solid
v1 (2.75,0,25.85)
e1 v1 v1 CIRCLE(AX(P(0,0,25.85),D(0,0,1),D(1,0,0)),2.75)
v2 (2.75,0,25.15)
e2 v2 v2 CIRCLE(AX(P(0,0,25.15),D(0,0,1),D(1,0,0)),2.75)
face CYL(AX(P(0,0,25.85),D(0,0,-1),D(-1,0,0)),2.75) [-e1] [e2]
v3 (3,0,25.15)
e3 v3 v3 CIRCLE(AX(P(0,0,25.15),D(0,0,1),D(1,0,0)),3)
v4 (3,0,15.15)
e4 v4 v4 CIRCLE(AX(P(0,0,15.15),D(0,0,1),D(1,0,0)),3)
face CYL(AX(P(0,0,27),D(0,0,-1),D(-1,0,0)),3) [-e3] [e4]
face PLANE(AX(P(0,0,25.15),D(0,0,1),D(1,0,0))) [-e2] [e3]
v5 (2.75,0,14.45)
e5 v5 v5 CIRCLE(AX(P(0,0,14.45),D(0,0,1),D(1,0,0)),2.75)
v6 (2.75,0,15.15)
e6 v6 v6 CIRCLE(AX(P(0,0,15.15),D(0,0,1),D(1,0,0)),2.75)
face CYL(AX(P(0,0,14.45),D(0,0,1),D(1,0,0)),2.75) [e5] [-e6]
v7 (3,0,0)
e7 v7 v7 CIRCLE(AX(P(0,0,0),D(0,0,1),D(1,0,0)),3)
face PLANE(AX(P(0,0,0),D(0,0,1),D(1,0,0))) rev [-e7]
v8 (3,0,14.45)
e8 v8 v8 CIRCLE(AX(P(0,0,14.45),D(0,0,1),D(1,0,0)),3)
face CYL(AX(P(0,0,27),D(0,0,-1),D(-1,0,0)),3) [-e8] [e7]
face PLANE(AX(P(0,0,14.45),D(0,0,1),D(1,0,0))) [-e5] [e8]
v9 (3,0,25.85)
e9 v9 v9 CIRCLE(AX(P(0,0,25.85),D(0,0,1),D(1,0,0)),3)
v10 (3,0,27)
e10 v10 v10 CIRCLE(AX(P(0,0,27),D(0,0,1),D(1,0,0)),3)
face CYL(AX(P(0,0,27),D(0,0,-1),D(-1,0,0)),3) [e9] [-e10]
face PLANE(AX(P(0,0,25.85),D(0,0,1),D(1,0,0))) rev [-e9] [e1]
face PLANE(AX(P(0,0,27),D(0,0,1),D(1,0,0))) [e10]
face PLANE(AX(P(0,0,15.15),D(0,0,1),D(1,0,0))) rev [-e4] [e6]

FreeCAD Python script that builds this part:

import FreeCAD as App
import Part
import Sketcher

V = App.Vector
Q = App.Units.Quantity

doc = App.newDocument("Part")
body = doc.addObject("PartDesign::Body", "Body")

sketch1 = body.newObject("Sketcher::SketchObject", "Sketch")
sketch1.AttachmentSupport = (doc.getObject("XY_Plane"), [""])
sketch1.MapMode = "FlatFace"
sketch1.addGeometry(Part.Circle(V(0, 0, 0), V(0, 0, 1), 3), False)
sketch1.addConstraint(Sketcher.Constraint("Coincident", 0, 3, -1, 1))
sketch1.addConstraint(Sketcher.Constraint("Diameter", 0, Q("6 mm")))
pad1 = body.newObject("PartDesign::Pad", "Pad")
pad1.Profile = sketch1
pad1.Length = 27

sketch2 = body.newObject("Sketcher::SketchObject", "Sketch001")
sketch2.AttachmentSupport = (doc.getObject("XY_Plane"), [""])
sketch2.MapMode = "FlatFace"
sketch2.AttachmentOffset = App.Placement(V(0, 0, 25.5), App.Rotation())
sketch2.addGeometry(Part.Circle(V(0, 0, 0), V(0, 0, 1), 3), False)
sketch2.addGeometry(Part.Circle(V(0, 0, 0), V(0, 0, 1), 2.8), False)
sketch2.addConstraint(Sketcher.Constraint("Coincident", 0, 3, -1, 1))
sketch2.addConstraint(Sketcher.Constraint("Coincident", 1, 3, -1, 1))
sketch2.addConstraint(Sketcher.Constraint("Diameter", 0, Q("6 mm")))
sketch2.addConstraint(Sketcher.Constraint("Diameter", 1, Q("5.5 mm")))
pocket1 = body.newObject("PartDesign::Pocket", "Pocket")
pocket1.Profile = sketch2
pocket1.Type = "TwoLengths"
pocket1.Length = 0.35
pocket1.Length2 = 0.35
pocket1.Reversed = True

sketch3 = body.newObject("Sketcher::SketchObject", "Sketch002")
sketch3.AttachmentSupport = (doc.getObject("XY_Plane"), [""])
sketch3.MapMode = "FlatFace"
sketch3.AttachmentOffset = App.Placement(V(0, 0, 14.45), App.Rotation())
sketch3.addGeometry(Part.Circle(V(0, 0, 0), V(0, 0, 1), 3), False)
sketch3.addGeometry(Part.Circle(V(0, 0, 0), V(0, 0, 1), 2.8), False)
sketch3.addConstraint(Sketcher.Constraint("Coincident", 0, 3, -1, 1))
sketch3.addConstraint(Sketcher.Constraint("Coincident", 1, 3, -1, 1))
sketch3.addConstraint(Sketcher.Constraint("Diameter", 0, Q("6 mm")))
sketch3.addConstraint(Sketcher.Constraint("Diameter", 1, Q("5.5 mm")))
pocket2 = body.newObject("PartDesign::Pocket", "Pocket001")
pocket2.Profile = sketch3
pocket2.Length = 0.7
pocket2.Reversed = True

doc.recompute()
